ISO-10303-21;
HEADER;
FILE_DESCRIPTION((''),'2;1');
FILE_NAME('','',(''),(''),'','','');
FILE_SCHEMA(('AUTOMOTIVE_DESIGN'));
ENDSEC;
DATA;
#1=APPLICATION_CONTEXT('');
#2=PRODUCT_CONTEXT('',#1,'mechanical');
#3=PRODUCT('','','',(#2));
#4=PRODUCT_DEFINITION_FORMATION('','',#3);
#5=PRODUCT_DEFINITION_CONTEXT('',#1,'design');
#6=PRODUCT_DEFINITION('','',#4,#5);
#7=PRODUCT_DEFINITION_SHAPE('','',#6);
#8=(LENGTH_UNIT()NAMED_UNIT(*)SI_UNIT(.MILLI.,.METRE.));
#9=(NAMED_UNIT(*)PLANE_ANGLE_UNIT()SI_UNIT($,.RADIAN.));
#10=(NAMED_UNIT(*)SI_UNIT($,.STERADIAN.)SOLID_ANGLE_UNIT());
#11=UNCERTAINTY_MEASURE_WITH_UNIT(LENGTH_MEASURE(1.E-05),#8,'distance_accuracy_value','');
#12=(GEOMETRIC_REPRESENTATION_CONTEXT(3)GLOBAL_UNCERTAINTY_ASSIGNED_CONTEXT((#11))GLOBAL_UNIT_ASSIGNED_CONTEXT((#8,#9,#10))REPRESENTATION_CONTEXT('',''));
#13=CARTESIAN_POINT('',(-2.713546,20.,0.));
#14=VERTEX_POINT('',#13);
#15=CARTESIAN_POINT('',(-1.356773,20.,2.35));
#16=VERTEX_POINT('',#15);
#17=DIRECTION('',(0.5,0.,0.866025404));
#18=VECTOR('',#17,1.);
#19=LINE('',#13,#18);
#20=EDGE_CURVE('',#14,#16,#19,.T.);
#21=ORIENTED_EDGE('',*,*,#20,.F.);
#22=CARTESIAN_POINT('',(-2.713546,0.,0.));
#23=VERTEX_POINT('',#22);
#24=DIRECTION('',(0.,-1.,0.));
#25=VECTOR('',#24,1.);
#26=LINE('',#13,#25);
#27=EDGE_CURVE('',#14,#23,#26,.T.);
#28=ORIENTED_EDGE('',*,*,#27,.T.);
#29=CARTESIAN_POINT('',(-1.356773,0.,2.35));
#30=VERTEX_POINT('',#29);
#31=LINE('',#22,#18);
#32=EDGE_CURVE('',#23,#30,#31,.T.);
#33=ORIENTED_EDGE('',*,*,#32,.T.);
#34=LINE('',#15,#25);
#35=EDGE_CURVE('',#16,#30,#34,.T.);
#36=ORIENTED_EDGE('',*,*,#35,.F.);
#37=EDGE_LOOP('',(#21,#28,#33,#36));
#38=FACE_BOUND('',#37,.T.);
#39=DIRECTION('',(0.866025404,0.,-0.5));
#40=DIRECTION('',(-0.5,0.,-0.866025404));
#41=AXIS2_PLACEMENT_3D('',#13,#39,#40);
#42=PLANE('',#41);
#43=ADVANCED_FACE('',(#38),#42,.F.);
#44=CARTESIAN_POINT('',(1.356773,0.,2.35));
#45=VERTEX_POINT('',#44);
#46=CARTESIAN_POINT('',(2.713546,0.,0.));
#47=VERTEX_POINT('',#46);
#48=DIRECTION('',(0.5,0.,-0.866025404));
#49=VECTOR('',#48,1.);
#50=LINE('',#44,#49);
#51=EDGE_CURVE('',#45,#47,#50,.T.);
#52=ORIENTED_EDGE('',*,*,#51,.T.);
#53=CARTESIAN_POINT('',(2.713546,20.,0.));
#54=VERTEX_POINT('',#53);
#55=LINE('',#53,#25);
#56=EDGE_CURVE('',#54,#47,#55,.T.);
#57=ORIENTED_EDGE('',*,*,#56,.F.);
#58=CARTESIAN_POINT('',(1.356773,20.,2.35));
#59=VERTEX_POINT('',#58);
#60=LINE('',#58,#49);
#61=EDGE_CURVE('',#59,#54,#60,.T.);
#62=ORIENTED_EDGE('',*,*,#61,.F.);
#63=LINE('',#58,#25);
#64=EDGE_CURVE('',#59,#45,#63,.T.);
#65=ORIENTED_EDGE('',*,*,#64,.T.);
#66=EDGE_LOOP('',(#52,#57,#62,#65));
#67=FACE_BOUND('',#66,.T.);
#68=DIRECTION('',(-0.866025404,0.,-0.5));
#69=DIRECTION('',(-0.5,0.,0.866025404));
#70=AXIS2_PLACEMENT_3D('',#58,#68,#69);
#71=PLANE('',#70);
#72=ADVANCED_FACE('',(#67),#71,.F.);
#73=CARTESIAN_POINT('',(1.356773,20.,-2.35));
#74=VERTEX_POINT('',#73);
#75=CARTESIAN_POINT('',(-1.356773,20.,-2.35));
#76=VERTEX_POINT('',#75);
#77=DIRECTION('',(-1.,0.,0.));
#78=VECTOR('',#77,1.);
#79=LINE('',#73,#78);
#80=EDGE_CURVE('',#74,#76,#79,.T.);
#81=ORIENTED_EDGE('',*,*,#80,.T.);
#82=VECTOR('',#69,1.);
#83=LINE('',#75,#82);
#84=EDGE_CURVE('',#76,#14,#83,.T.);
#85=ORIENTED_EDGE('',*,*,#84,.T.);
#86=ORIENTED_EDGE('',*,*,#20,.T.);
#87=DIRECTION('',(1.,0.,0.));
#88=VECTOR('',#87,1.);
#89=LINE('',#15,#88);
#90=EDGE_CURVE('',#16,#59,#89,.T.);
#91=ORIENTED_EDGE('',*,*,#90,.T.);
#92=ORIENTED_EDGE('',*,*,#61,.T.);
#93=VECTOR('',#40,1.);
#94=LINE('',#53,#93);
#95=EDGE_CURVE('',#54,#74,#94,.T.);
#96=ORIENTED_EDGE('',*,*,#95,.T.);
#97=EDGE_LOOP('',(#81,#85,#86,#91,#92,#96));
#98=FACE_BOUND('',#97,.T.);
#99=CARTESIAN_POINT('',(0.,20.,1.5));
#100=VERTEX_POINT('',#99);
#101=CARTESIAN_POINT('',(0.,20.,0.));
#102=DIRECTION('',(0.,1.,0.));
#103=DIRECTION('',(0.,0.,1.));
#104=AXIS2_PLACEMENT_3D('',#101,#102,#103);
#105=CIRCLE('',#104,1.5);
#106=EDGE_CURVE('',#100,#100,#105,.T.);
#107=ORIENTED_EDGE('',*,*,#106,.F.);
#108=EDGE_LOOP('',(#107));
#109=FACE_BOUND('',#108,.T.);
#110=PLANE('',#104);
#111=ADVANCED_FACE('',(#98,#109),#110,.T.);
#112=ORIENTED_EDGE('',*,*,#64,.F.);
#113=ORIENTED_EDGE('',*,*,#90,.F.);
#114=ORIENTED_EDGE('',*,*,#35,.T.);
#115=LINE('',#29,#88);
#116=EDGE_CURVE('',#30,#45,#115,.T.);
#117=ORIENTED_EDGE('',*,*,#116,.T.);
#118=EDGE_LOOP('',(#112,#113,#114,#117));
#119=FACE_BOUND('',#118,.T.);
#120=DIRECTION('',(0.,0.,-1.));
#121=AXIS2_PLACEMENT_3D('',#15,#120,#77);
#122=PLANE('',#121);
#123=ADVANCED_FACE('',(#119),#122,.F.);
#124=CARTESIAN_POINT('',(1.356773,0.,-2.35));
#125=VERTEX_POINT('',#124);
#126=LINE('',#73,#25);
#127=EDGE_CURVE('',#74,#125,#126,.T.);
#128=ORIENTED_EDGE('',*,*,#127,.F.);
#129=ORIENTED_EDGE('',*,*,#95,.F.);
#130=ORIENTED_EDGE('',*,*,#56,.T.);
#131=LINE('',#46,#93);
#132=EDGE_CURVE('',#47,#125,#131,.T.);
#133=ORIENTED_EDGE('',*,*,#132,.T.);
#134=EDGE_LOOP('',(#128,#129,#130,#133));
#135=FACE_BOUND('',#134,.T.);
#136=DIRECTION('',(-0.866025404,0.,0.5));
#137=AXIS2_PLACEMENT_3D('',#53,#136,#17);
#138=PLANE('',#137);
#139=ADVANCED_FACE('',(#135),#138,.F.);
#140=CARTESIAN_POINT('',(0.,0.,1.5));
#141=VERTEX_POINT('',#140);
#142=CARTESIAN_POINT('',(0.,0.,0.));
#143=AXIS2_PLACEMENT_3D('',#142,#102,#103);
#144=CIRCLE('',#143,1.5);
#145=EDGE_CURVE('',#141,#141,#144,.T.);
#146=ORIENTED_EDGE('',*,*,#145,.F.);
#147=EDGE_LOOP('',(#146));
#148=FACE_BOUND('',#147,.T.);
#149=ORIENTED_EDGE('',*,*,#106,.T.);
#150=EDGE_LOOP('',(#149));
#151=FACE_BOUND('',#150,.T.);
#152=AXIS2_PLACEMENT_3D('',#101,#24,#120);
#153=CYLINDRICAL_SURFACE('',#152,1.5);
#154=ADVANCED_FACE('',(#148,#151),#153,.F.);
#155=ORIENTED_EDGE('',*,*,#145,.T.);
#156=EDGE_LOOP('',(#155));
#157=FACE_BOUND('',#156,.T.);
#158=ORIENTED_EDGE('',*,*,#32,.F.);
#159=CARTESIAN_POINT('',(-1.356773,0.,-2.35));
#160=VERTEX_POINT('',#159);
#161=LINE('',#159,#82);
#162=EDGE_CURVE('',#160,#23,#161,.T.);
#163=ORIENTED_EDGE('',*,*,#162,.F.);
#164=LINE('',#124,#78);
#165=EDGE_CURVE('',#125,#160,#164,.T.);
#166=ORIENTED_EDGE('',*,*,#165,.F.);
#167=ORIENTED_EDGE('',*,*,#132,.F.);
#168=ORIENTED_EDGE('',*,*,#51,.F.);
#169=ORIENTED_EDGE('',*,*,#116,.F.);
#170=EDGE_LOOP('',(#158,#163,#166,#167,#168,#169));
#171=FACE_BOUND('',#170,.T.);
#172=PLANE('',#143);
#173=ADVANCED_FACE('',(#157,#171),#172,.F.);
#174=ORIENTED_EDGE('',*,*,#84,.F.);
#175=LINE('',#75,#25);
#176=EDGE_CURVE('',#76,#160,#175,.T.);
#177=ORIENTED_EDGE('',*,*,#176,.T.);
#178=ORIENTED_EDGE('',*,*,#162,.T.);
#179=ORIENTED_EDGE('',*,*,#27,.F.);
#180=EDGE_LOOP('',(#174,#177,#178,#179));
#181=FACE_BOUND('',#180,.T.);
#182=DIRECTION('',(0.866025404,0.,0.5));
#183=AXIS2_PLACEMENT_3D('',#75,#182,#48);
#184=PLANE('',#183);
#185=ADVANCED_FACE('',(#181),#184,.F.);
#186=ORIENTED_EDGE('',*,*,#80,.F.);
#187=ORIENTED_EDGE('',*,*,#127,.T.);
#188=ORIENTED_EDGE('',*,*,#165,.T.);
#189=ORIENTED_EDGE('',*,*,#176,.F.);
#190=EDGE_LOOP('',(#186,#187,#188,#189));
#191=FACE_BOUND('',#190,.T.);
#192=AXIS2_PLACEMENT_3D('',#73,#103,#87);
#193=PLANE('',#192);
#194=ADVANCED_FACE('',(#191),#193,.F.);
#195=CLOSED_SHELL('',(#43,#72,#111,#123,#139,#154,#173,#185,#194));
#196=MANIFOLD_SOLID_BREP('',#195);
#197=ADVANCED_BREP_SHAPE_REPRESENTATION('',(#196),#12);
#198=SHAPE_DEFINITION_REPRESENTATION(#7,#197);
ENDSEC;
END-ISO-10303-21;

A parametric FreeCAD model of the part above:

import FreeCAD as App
import Part
import Sketcher

V = App.Vector
Q = App.Units.Quantity


def add_polygon(sketch, points):
    """Adds a closed chain of lines whose ends are joined by coincident constraints."""
    first, n = sketch.GeometryCount, len(points)
    for a, b in zip(points, points[1:] + points[:1]):
        sketch.addGeometry(Part.LineSegment(App.Vector(*a, 0), App.Vector(*b, 0)), False)
    for i in range(n):
        sketch.addConstraint(Sketcher.Constraint("Coincident", first + i, 2, first + (i + 1) % n, 1))

doc = App.newDocument("Part")
body = doc.addObject("PartDesign::Body", "Body")

sketch1 = body.newObject("Sketcher::SketchObject", "Sketch")
sketch1.AttachmentSupport = (doc.getObject("XZ_Plane"), [""])
sketch1.MapMode = "FlatFace"
add_polygon(sketch1, [(2.7, 0), (1.4, -2.4), (-1.4, -2.4), (-2.7, 0), (-1.4, 2.4), (1.4, 2.4)])
sketch1.addGeometry(Part.Circle(V(0, 0, 0), V(0, 0, 1), 1.5), False)
sketch1.addConstraint(Sketcher.Constraint("Horizontal", 1))
sketch1.addConstraint(Sketcher.Constraint("Horizontal", 4))
sketch1.addConstraint(Sketcher.Constraint("Coincident", 6, 3, -1, 1))
sketch1.addConstraint(Sketcher.Constraint("Symmetric", 0, 2, 3, 2, -1, 1))
sketch1.addConstraint(Sketcher.Constraint("Symmetric", 2, 2, 5, 2, -1, 1))
sketch1.addConstraint(Sketcher.Constraint("PointOnObject", 2, 2, -1))
sketch1.addConstraint(Sketcher.Constraint("Parallel", 2, 5))
sketch1.addConstraint(Sketcher.Constraint("Vertical", 1, 2, 3, 2))
sketch1.addConstraint(Sketcher.Constraint("Diameter", 6, 3.0))
sketch1.addConstraint(Sketcher.Constraint("Angle", 0, Q("-120 deg")))
sketch1.addConstraint(Sketcher.Constraint("DistanceY", 1, 2, 3, 2, 4.7))
sketch1.addConstraint(Sketcher.Constraint("DistanceX", 1, 2, 1, 1, 2.713546))
pad1 = body.newObject("PartDesign::Pad", "Pad")
pad1.Profile = sketch1
pad1.Length = 20
pad1.Reversed = True

doc.recompute()
